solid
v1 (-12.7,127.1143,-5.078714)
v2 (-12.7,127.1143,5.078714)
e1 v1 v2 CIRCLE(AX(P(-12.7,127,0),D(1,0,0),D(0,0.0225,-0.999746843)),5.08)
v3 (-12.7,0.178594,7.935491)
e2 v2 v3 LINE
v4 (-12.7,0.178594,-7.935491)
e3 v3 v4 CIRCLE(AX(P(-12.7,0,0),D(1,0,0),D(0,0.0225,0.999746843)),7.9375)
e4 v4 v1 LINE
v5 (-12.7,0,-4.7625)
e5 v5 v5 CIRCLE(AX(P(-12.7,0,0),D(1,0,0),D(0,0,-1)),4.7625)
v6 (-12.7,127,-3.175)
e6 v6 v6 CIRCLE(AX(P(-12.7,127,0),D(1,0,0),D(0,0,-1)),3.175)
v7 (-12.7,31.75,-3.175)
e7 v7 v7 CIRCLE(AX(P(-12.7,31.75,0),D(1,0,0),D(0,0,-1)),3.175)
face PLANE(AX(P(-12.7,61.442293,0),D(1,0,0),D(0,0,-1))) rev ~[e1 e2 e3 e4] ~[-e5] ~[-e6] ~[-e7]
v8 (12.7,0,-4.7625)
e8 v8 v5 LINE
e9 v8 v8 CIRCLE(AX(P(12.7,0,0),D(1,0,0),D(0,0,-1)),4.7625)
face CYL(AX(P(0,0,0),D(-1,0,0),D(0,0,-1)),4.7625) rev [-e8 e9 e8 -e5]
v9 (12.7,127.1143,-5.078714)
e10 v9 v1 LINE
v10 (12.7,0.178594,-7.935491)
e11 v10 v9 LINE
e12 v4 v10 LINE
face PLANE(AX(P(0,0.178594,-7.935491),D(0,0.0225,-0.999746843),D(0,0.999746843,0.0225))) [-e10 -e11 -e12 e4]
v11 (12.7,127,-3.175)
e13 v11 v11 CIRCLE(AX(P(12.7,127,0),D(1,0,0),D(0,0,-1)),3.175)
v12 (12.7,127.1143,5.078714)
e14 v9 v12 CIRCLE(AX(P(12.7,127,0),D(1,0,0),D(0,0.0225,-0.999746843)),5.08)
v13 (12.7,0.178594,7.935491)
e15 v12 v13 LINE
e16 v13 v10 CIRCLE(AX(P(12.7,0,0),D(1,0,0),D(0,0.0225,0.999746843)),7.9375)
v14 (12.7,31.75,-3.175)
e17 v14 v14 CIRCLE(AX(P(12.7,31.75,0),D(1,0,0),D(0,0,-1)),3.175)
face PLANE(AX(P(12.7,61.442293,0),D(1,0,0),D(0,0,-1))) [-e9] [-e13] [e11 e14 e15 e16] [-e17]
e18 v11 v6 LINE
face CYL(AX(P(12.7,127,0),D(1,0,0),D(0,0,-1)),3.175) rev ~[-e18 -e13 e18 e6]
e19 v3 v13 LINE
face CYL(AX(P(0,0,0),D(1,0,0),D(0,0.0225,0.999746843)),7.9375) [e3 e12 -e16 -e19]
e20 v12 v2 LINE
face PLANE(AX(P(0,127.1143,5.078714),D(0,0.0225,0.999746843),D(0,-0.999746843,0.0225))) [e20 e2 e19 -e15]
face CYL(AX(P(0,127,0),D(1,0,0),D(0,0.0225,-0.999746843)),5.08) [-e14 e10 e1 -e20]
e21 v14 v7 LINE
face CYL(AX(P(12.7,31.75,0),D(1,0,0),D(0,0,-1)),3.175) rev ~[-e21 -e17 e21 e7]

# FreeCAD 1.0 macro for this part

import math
import FreeCAD as App
import Part
import Sketcher

V = App.Vector
Q = App.Units.Quantity

doc = App.newDocument("Part")
body = doc.addObject("PartDesign::Body", "Body")

sketch1 = doc.addObject("Sketcher::SketchObject", "Sketch")
body.addObject(sketch1)
sketch1.AttachmentSupport = (doc.YZ_Plane, [""])
sketch1.MapMode = "FlatFace"
sketch1.addGeometry(Part.LineSegment(V(127.1, 5.1, 0), V(0.2, 7.9, 0)), False)
sketch1.addGeometry(Part.ArcOfCircle(Part.Circle(V(0, 0, 0), V(0, 0, 1), 7.9), math.radians(89), math.radians(271)), False)
sketch1.addGeometry(Part.LineSegment(V(0.2, -7.9, 0), V(127.1, -5.1, 0)), False)
sketch1.addGeometry(Part.ArcOfCircle(Part.Circle(V(127, 0, 0), V(0, 0, 1), 5.1), math.radians(-89), math.radians(89)), False)
sketch1.addGeometry(Part.Circle(V(0, 0, 0), V(0, 0, 1), 4.8), False)
sketch1.addConstraint(Sketcher.Constraint("Tangent", 0, 2, 1, 1))
sketch1.addConstraint(Sketcher.Constraint("Tangent", 1, 2, 2, 1))
sketch1.addConstraint(Sketcher.Constraint("Tangent", 2, 2, 3, 1))
sketch1.addConstraint(Sketcher.Constraint("Tangent", 3, 2, 0, 1))
sketch1.addConstraint(Sketcher.Constraint("Coincident", 1, 3, -1, 1))
sketch1.addConstraint(Sketcher.Constraint("Coincident", 4, 3, -1, 1))
sketch1.addConstraint(Sketcher.Constraint("PointOnObject", 3, 3, -1))
sketch1.addConstraint(Sketcher.Constraint("Radius", 3, Q("0.2 in")))
sketch1.addConstraint(Sketcher.Constraint("Diameter", 4, Q("0.375 in")))
sketch1.addConstraint(Sketcher.Constraint("DistanceX", -1, 1, 3, 3, Q("5 in")))
sketch1.addConstraint(Sketcher.Constraint("Radius", 1, Q("0.3125 in")))
pad1 = doc.addObject("PartDesign::Pad", "Pad")
body.addObject(pad1)
pad1.Profile = sketch1
pad1.Length = Q("1 in")
pad1.Midplane = True

sketch2 = doc.addObject("Sketcher::SketchObject", "Sketch001")
body.addObject(sketch2)
sketch2.AttachmentSupport = (doc.YZ_Plane, [""])
sketch2.MapMode = "FlatFace"
sketch2.AttachmentOffset = App.Placement(V(0, 0, 0.5 * 25.4), App.Rotation())
sketch2.addGeometry(Part.Circle(V(31.8, 0, 0), V(0, 0, 1), 3.2), False)
sketch2.addGeometry(Part.Circle(V(127, 0, 0), V(0, 0, 1), 3.2), False)
sketch2.addConstraint(Sketcher.Constraint("Equal", 0, 1))
sketch2.addConstraint(Sketcher.Constraint("PointOnObject", 0, 3, -1))
sketch2.addConstraint(Sketcher.Constraint("PointOnObject", 1, 3, -1))
sketch2.addConstraint(Sketcher.Constraint("Diameter", 0, Q("0.25 in")))
sketch2.addConstraint(Sketcher.Constraint("DistanceX", -1, 1, 1, 3, Q("5 in")))
sketch2.addConstraint(Sketcher.Constraint("DistanceX", -1, 1, 0, 3, Q("1.25 in")))
pocket1 = doc.addObject("PartDesign::Pocket", "Pocket")
body.addObject(pocket1)
pocket1.Profile = sketch2
pocket1.Type = "ThroughAll"

doc.recompute()
